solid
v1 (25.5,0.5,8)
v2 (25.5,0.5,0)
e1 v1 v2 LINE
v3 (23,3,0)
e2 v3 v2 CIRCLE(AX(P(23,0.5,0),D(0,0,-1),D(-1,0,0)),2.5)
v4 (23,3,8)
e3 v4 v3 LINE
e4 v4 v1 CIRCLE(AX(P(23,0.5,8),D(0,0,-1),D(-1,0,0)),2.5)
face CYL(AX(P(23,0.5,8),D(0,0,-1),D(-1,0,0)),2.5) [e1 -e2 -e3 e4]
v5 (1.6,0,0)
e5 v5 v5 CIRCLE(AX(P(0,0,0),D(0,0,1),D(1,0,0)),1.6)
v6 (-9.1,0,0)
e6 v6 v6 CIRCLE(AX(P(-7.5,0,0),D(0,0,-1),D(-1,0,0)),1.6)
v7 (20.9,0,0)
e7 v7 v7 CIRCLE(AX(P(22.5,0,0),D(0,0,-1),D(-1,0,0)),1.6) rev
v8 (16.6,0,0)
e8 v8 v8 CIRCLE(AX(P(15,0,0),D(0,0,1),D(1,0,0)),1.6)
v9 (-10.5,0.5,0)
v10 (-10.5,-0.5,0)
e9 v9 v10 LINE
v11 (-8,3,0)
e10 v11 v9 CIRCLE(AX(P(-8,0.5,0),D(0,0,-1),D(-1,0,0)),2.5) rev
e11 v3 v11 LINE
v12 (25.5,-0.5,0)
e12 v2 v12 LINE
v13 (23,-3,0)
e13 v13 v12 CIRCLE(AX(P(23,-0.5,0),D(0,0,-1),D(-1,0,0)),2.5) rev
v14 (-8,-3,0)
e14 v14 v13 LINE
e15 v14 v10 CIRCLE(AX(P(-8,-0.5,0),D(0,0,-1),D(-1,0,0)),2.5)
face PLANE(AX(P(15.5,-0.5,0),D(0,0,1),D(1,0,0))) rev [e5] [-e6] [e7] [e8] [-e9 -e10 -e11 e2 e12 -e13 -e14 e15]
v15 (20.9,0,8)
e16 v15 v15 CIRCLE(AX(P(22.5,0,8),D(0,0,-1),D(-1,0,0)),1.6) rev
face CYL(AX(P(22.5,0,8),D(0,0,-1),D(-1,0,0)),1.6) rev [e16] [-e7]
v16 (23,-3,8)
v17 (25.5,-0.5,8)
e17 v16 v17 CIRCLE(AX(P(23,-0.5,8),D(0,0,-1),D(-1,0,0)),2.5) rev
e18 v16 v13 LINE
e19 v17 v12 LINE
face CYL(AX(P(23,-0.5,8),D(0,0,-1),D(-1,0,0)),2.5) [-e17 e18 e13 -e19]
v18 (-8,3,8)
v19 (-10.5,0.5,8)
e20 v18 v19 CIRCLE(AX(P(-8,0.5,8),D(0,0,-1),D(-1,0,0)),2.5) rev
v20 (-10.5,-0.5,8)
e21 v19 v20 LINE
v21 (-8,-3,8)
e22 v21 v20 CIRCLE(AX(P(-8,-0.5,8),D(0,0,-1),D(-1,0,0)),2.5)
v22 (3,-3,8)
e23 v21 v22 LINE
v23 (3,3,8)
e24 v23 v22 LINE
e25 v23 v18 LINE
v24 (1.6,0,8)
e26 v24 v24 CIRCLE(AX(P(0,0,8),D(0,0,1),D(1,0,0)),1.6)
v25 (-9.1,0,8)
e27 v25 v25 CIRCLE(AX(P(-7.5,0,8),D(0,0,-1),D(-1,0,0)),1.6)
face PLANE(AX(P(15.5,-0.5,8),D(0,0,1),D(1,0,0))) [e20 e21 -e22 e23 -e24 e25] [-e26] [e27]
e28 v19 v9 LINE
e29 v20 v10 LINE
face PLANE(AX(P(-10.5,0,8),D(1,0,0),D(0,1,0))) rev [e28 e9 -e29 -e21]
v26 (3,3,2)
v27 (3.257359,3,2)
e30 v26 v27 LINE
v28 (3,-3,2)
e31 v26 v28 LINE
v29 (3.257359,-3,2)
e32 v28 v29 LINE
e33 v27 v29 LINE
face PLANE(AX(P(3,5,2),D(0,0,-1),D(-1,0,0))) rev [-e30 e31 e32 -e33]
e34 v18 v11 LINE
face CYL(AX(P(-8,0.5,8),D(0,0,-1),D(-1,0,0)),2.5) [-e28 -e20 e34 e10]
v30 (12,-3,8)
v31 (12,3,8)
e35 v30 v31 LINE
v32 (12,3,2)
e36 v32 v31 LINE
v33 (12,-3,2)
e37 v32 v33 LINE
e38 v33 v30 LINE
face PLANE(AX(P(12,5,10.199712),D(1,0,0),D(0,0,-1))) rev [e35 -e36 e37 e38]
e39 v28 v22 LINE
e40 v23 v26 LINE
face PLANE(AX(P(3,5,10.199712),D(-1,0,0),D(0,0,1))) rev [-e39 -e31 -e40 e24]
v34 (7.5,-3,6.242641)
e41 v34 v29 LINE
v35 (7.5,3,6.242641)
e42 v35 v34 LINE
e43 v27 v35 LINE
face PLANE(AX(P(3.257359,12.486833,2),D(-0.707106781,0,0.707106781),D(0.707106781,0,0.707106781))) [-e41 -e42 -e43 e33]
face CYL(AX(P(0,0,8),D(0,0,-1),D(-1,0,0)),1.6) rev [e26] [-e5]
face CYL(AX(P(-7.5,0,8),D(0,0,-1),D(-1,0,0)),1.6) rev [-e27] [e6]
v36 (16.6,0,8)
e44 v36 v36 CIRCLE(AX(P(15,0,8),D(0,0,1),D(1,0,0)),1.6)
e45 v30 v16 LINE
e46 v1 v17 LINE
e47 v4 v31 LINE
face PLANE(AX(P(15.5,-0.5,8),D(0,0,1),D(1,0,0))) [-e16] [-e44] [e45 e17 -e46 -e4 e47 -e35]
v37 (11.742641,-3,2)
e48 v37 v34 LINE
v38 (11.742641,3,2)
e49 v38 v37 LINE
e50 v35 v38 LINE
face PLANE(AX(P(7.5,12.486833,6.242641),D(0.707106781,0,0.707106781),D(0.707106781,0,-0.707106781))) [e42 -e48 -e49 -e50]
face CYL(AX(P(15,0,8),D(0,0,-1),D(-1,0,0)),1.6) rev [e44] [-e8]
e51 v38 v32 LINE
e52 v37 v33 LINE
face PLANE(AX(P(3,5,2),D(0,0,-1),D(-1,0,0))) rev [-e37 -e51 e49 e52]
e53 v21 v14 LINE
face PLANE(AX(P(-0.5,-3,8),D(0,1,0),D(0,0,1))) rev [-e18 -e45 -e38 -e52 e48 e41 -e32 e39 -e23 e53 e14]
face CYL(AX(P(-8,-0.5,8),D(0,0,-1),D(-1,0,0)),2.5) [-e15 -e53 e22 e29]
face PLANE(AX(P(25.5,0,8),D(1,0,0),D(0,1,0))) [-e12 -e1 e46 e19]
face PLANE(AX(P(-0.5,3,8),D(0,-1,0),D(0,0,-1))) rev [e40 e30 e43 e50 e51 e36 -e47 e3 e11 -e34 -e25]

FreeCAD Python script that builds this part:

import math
import FreeCAD as App
import Part
import Sketcher
from FreeCAD import Vector
Q = App.Units.Quantity

doc = App.newDocument("Part")
body = doc.addObject("PartDesign::Body", "Body")

sketch1 = body.newObject("Sketcher::SketchObject", "Sketch")
sketch1.AttachmentSupport = (doc.getObject("XY_Plane"), [""])
sketch1.MapMode = "FlatFace"
sketch1.addGeometry([
    Part.LineSegment(Vector(15.5, 3, 0), Vector(-0.5, 3, 0)),
    Part.ArcOfCircle(Part.Circle(Vector(-0.5, 0.5, 0), Vector(0, 0, 1), 2.5), math.radians(90), math.radians(180)),
    Part.LineSegment(Vector(-3, 0.5, 0), Vector(-3, -0.5, 0)),
    Part.ArcOfCircle(Part.Circle(Vector(-0.5, -0.5, 0), Vector(0, 0, 1), 2.5), math.radians(180), math.radians(270)),
    Part.LineSegment(Vector(-0.5, -3, 0), Vector(15.5, -3, 0)),
    Part.ArcOfCircle(Part.Circle(Vector(15.5, -0.5, 0), Vector(0, 0, 1), 2.5), math.radians(-90), math.radians(0)),
    Part.LineSegment(Vector(18, -0.5, 0), Vector(18, 0.5, 0)),
    Part.ArcOfCircle(Part.Circle(Vector(15.5, 0.5, 0), Vector(0, 0, 1), 2.5), math.radians(0), math.radians(90)),
    Part.Circle(Vector(15, 0, 0), Vector(0, 0, 1), 1.6),
    Part.Circle(Vector(0, 0, 0), Vector(0, 0, 1), 1.6),
], False)
sketch1.addConstraint([
    Sketcher.Constraint("Tangent", 0, 2, 1, 1),
    Sketcher.Constraint("Tangent", 1, 2, 2, 1),
    Sketcher.Constraint("Tangent", 2, 2, 3, 1),
    Sketcher.Constraint("Tangent", 3, 2, 4, 1),
    Sketcher.Constraint("Tangent", 4, 2, 5, 1),
    Sketcher.Constraint("Tangent", 5, 2, 6, 1),
    Sketcher.Constraint("Tangent", 6, 2, 7, 1),
    Sketcher.Constraint("Tangent", 7, 2, 0, 1),
    Sketcher.Constraint("Horizontal", 0),
    Sketcher.Constraint("Vertical", 2),
    Sketcher.Constraint("Horizontal", 4),
    Sketcher.Constraint("Vertical", 6),
    Sketcher.Constraint("Coincident", 9, 3, -1, 1),
    Sketcher.Constraint("Equal", 1, 3),
    Sketcher.Constraint("Equal", 3, 5),
    Sketcher.Constraint("Equal", 5, 7),
    Sketcher.Constraint("Equal", 8, 9),
    Sketcher.Constraint("PointOnObject", 8, 3, -1),
    Sketcher.Constraint("Diameter", 8, Q("3.2 mm")),
    Sketcher.Constraint("Radius", 1, Q("2.5 mm")),
    Sketcher.Constraint("DistanceX", 0, 2, 0, 1, Q("16 mm")),
    Sketcher.Constraint("DistanceY", 2, 2, 2, 1, Q("1 mm")),
    Sketcher.Constraint("DistanceX", -1, 1, 8, 3, Q("15 mm")),
    Sketcher.Constraint("DistanceY", -1, 1, 0, 2, Q("3 mm")),
    Sketcher.Constraint("DistanceX", 1, 2, -1, 1, Q("3 mm")),
])
pad1 = body.newObject("PartDesign::Pad", "Pad")
pad1.Profile = sketch1
pad1.Length = 8

sketch2 = body.newObject("Sketcher::SketchObject", "Sketch001")
sketch2.AttachmentSupport = (doc.getObject("XZ_Plane"), [""])
sketch2.MapMode = "FlatFace"
sketch2.AttachmentOffset = App.Placement(Vector(0, 0, 3), App.Rotation())
sketch2.addGeometry([
    Part.LineSegment(Vector(3, 10, 0), Vector(3, 2, 0)),
    Part.LineSegment(Vector(3, 2, 0), Vector(12, 2, 0)),
    Part.LineSegment(Vector(12, 2, 0), Vector(12, 10, 0)),
    Part.LineSegment(Vector(12, 10, 0), Vector(3, 10, 0)),
], False)
sketch2.addConstraint([
    Sketcher.Constraint("Coincident", 0, 2, 1, 1),
    Sketcher.Constraint("Coincident", 1, 2, 2, 1),
    Sketcher.Constraint("Coincident", 2, 2, 3, 1),
    Sketcher.Constraint("Coincident", 3, 2, 0, 1),
    Sketcher.Constraint("Vertical", 0),
    Sketcher.Constraint("Horizontal", 1),
    Sketcher.Constraint("Vertical", 2),
    Sketcher.Constraint("Horizontal", 3),
    Sketcher.Constraint("DistanceX", 1, 1, 1, 2, Q("9 mm")),
    Sketcher.Constraint("DistanceX", -1, 1, 0, 2, Q("3 mm")),
    Sketcher.Constraint("DistanceY", -1, 1, 0, 2, Q("2 mm")),
    Sketcher.Constraint("DistanceY", 0, 2, 0, 1, Q("8.199712 mm")),
])
pocket1 = body.newObject("PartDesign::Pocket", "Pocket")
pocket1.Profile = sketch2
pocket1.Length = 8

sketch3 = body.newObject("Sketcher::SketchObject", "Sketch002")
sketch3.AttachmentSupport = (doc.getObject("XZ_Plane"), [""])
sketch3.MapMode = "FlatFace"
sketch3.AttachmentOffset = App.Placement(Vector(0, 0, 3), App.Rotation())
sketch3.addGeometry([
    Part.LineSegment(Vector(8, 6, 0), Vector(3, 2, 0)),
    Part.LineSegment(Vector(3, 2, 0), Vector(12, 2, 0)),
    Part.LineSegment(Vector(12, 2, 0), Vector(8, 6, 0)),
], False)
sketch3.addConstraint([
    Sketcher.Constraint("Coincident", 0, 2, 1, 1),
    Sketcher.Constraint("Coincident", 1, 2, 2, 1),
    Sketcher.Constraint("Coincident", 2, 2, 0, 1),
    Sketcher.Constraint("Horizontal", 1),
    Sketcher.Constraint("Perpendicular", 0, 2),
    Sketcher.Constraint("Equal", 0, 2),
    Sketcher.Constraint("Distance", 0, Q("6 mm")),
    Sketcher.Constraint("DistanceY", -1, 1, 0, 2, Q("2 mm")),
    Sketcher.Constraint("DistanceX", -1, 1, 2, 2, Q("7.5 mm")),
])
pad2 = body.newObject("PartDesign::Pad", "Pad001")
pad2.Profile = sketch3
pad2.Length = 6
pad2.Reversed = True

sketch4 = body.newObject("Sketcher::SketchObject", "Sketch003")
sketch4.AttachmentSupport = (doc.getObject("XY_Plane"), [""])
sketch4.MapMode = "FlatFace"
sketch4.addGeometry([
    Part.ArcOfCircle(Part.Circle(Vector(-8, 0.5, 0), Vector(0, 0, 1), 2.5), math.radians(90), math.radians(180)),
    Part.LineSegment(Vector(-8, 3, 0), Vector(-0.5, 3, 0)),
    Part.ArcOfCircle(Part.Circle(Vector(-0.5, 0.5, 0), Vector(0, 0, 1), 2.5), math.radians(90), math.radians(180)),
    Part.LineSegment(Vector(-3, 0.5, 0), Vector(-3, -0.5, 0)),
    Part.ArcOfCircle(Part.Circle(Vector(-0.5, -0.5, 0), Vector(0, 0, 1), 2.5), math.radians(180), math.radians(270)),
    Part.LineSegment(Vector(-0.5, -3, 0), Vector(-8, -3, 0)),
    Part.ArcOfCircle(Part.Circle(Vector(-8, -0.5, 0), Vector(0, 0, 1), 2.5), math.radians(180), math.radians(270)),
    Part.LineSegment(Vector(-10.5, -0.5, 0), Vector(-10.5, 0.5, 0)),
    Part.Circle(Vector(-7.5, 0, 0), Vector(0, 0, 1), 1.6),
    Part.ArcOfCircle(Part.Circle(Vector(23, -0.5, 0), Vector(0, 0, 1), 2.5), math.radians(-90), math.radians(0)),
    Part.LineSegment(Vector(23, -3, 0), Vector(15.5, -3, 0)),
    Part.ArcOfCircle(Part.Circle(Vector(15.5, -0.5, 0), Vector(0, 0, 1), 2.5), math.radians(-90), math.radians(0)),
    Part.LineSegment(Vector(18, -0.5, 0), Vector(18, 0.5, 0)),
    Part.ArcOfCircle(Part.Circle(Vector(15.5, 0.5, 0), Vector(0, 0, 1), 2.5), math.radians(0), math.radians(90)),
    Part.LineSegment(Vector(15.5, 3, 0), Vector(23, 3, 0)),
    Part.ArcOfCircle(Part.Circle(Vector(23, 0.5, 0), Vector(0, 0, 1), 2.5), math.radians(0), math.radians(90)),
    Part.LineSegment(Vector(25.5, 0.5, 0), Vector(25.5, -0.5, 0)),
    Part.Circle(Vector(22.5, 0, 0), Vector(0, 0, 1), 1.6),
], False)
sketch4.addConstraint([
    Sketcher.Constraint("Tangent", 0, 1, 1, 1),
    Sketcher.Constraint("Tangent", 1, 2, 2, 1),
    Sketcher.Constraint("Tangent", 2, 2, 3, 1),
    Sketcher.Constraint("Tangent", 3, 2, 4, 1),
    Sketcher.Constraint("Tangent", 4, 2, 5, 1),
    Sketcher.Constraint("Tangent", 5, 2, 6, 2),
    Sketcher.Constraint("Tangent", 6, 1, 7, 1),
    Sketcher.Constraint("Tangent", 7, 2, 0, 2),
    Sketcher.Constraint("Tangent", 9, 1, 10, 1),
    Sketcher.Constraint("Tangent", 10, 2, 11, 1),
    Sketcher.Constraint("Tangent", 11, 2, 12, 1),
    Sketcher.Constraint("Tangent", 12, 2, 13, 1),
    Sketcher.Constraint("Tangent", 13, 2, 14, 1),
    Sketcher.Constraint("Tangent", 14, 2, 15, 2),
    Sketcher.Constraint("Tangent", 15, 1, 16, 1),
    Sketcher.Constraint("Tangent", 16, 2, 9, 2),
    Sketcher.Constraint("Horizontal", 1),
    Sketcher.Constraint("Vertical", 3),
    Sketcher.Constraint("Horizontal", 5),
    Sketcher.Constraint("Vertical", 7),
    Sketcher.Constraint("Horizontal", 10),
    Sketcher.Constraint("Vertical", 12),
    Sketcher.Constraint("Horizontal", 14),
    Sketcher.Constraint("Vertical", 16),
    Sketcher.Constraint("Equal", 0, 2),
    Sketcher.Constraint("Equal", 2, 4),
    Sketcher.Constraint("Equal", 4, 6),
    Sketcher.Constraint("Equal", 6, 9),
    Sketcher.Constraint("Equal", 9, 11),
    Sketcher.Constraint("Equal", 11, 13),
    Sketcher.Constraint("Equal", 13, 15),
    Sketcher.Constraint("Equal", 8, 17),
    Sketcher.Constraint("PointOnObject", 8, 3, -1),
    Sketcher.Constraint("PointOnObject", 17, 3, -1),
    Sketcher.Constraint("Horizontal", 6, 3, 9, 3),
    Sketcher.Constraint("Horizontal", 2, 3, 13, 3),
    Sketcher.Constraint("Equal", 5, 10),
    Sketcher.Constraint("Diameter", 8, Q("3.2 mm")),
    Sketcher.Constraint("Radius", 0, Q("2.5 mm")),
    Sketcher.Constraint("DistanceY", 3, 2, 3, 1, Q("1 mm")),
    Sketcher.Constraint("DistanceX", 1, 1, 1, 2, Q("7.5 mm")),
    Sketcher.Constraint("DistanceX", 0, 3, -1, 1, Q("8 mm")),
    Sketcher.Constraint("DistanceX", -1, 1, 9, 3, Q("23 mm")),
    Sketcher.Constraint("DistanceY", -1, 1, 0, 1, Q("3 mm")),
    Sketcher.Constraint("DistanceX", 8, 3, 2, 3, Q("7 mm")),
    Sketcher.Constraint("DistanceX", 11, 3, 17, 3, Q("7 mm")),
])
pad3 = body.newObject("PartDesign::Pad", "Pad002")
pad3.Profile = sketch4
pad3.Length = 8

doc.recompute()
